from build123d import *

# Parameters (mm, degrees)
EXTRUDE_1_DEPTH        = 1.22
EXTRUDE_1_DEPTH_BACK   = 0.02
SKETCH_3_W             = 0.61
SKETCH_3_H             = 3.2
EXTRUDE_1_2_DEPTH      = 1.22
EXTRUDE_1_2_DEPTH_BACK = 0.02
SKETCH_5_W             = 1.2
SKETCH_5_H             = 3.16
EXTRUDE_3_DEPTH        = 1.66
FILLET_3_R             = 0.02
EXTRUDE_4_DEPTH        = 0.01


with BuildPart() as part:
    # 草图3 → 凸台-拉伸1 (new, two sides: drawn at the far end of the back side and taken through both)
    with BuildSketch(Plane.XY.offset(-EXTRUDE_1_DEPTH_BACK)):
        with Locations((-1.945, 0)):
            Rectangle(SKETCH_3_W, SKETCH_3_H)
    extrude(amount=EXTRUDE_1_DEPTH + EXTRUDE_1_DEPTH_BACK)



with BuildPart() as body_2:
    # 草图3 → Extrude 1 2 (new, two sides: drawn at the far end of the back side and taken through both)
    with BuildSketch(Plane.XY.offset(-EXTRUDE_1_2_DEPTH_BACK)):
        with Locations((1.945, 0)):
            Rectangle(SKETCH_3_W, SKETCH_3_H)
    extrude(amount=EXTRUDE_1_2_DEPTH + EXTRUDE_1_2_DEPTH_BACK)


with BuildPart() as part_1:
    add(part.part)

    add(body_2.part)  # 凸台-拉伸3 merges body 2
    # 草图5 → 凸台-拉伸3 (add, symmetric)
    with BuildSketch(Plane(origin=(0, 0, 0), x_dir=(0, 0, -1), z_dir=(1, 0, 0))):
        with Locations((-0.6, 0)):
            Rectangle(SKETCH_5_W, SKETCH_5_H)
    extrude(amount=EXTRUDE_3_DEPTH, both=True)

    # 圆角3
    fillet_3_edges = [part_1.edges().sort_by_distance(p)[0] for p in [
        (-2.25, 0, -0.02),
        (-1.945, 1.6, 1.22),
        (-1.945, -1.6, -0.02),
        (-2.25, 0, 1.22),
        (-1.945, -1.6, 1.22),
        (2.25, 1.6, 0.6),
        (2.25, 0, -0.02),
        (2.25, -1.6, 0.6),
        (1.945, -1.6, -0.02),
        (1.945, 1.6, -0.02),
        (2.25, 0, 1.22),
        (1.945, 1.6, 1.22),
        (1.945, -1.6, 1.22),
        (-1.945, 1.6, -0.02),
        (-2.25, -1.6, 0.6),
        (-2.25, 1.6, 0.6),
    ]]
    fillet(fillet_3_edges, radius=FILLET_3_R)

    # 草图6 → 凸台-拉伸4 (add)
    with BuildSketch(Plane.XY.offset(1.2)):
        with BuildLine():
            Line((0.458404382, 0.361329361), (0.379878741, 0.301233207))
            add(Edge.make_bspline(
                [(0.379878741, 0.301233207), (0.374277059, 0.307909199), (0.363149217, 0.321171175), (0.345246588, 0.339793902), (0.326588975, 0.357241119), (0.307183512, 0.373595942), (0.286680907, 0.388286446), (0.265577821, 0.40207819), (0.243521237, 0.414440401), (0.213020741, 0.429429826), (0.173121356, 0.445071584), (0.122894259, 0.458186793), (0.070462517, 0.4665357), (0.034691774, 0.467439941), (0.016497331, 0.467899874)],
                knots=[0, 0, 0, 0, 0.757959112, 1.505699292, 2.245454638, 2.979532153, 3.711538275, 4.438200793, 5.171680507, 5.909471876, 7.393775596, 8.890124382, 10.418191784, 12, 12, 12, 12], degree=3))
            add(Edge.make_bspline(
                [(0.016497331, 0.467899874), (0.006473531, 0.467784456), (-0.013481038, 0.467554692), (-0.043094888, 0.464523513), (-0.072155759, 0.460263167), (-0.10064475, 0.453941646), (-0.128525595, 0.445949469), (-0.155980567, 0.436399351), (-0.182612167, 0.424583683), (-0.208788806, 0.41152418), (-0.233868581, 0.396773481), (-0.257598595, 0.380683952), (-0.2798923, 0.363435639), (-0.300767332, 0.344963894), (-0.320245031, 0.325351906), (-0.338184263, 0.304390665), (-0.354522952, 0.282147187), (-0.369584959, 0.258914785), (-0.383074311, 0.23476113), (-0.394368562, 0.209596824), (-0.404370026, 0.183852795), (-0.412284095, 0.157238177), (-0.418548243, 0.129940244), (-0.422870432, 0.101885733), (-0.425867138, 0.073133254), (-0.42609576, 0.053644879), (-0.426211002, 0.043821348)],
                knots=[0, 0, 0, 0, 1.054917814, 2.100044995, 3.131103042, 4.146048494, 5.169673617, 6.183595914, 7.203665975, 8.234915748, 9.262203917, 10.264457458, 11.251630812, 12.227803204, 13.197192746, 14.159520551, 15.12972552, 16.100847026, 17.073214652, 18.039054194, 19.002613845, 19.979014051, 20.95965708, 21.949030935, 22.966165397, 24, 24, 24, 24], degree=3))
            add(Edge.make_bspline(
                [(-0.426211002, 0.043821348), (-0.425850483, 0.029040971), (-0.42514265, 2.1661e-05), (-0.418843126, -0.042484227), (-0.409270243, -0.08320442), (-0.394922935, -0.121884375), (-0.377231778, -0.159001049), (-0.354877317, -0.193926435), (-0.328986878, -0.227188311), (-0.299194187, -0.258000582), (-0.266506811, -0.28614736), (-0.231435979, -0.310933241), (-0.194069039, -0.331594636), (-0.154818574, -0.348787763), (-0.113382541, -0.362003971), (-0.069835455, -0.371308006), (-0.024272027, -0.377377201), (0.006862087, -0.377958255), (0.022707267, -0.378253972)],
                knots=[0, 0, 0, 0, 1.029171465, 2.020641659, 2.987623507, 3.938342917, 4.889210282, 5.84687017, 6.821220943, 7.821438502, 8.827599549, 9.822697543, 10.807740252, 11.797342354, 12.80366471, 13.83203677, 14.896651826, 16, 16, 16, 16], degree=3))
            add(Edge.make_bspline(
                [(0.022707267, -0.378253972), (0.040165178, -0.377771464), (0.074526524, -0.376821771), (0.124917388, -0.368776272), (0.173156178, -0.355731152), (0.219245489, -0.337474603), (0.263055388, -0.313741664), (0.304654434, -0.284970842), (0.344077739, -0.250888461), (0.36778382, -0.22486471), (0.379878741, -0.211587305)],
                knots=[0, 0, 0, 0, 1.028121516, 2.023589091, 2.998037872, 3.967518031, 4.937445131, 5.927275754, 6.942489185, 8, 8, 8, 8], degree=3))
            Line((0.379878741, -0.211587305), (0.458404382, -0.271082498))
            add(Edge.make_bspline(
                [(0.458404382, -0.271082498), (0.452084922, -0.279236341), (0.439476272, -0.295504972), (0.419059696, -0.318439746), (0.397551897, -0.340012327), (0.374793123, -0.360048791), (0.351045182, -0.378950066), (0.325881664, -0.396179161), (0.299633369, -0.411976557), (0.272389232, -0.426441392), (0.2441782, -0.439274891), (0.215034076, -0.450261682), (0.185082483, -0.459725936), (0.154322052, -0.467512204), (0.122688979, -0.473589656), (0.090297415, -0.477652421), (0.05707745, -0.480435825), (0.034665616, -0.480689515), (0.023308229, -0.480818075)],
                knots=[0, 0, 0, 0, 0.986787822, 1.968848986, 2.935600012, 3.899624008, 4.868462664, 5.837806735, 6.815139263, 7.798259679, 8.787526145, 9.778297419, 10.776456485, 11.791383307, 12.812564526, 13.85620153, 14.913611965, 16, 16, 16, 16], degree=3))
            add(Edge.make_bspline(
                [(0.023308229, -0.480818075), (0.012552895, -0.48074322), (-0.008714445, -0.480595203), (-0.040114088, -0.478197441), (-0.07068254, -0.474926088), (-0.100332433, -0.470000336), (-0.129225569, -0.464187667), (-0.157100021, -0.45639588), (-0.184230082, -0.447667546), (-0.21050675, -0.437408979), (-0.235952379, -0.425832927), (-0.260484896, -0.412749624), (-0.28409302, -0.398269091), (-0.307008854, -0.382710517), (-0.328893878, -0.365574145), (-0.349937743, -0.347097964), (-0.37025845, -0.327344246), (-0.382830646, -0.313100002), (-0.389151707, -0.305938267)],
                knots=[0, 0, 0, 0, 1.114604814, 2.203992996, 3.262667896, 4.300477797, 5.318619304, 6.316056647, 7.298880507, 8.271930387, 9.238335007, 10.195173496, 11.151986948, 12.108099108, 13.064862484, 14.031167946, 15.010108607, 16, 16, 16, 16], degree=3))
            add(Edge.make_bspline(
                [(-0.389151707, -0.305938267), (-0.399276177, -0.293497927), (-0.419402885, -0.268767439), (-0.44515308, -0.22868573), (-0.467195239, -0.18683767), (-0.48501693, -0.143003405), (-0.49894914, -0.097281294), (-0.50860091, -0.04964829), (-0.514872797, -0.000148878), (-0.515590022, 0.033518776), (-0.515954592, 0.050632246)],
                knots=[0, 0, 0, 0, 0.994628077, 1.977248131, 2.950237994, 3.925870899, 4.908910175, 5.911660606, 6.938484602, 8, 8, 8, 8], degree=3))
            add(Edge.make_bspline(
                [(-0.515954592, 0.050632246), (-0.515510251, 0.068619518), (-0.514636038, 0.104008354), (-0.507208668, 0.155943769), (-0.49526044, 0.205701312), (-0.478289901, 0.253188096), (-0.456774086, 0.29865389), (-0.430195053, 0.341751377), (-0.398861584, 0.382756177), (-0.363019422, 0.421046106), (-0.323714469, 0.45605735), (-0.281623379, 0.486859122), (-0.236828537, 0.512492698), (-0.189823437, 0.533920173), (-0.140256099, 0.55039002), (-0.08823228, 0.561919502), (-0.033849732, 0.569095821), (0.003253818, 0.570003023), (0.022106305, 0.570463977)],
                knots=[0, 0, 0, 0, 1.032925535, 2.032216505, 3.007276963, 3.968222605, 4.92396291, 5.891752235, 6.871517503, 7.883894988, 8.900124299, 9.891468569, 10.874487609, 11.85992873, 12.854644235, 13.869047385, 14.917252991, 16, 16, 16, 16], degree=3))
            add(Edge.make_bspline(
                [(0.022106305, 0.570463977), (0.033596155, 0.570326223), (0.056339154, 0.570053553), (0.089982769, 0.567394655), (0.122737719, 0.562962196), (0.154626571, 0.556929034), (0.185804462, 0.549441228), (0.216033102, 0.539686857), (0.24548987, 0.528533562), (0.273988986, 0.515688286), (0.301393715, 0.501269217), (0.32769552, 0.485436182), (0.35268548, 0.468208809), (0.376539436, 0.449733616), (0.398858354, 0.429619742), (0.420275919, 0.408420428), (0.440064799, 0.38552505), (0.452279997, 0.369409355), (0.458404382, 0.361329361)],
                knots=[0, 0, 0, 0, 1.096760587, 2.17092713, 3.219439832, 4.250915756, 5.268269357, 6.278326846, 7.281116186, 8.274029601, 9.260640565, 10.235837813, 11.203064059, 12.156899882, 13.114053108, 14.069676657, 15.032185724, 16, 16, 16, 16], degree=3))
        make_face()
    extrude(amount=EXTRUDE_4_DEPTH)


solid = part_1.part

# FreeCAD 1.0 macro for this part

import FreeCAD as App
import Part
import Sketcher
Q = App.Units.Quantity


def edges_at(feature, points):
    """Names of the edges that pass closest to the given points."""
    edges = feature.Shape.Edges
    near = lambda p: min(range(len(edges)), key=lambda i: edges[i].distToShape(Part.Vertex(*p))[0])
    return sorted({f"Edge{near(p) + 1}" for p in points})


def add_polygon(sketch, points):
    """Adds a closed chain of lines whose ends are joined by coincident constraints."""
    first, n = sketch.GeometryCount, len(points)
    for a, b in zip(points, points[1:] + points[:1]):
        sketch.addGeometry(Part.LineSegment(App.Vector(*a, 0), App.Vector(*b, 0)), False)
    for i in range(n):
        sketch.addConstraint(Sketcher.Constraint("Coincident", first + i, 2, first + (i + 1) % n, 1))

doc = App.newDocument("Part")
body = doc.addObject("PartDesign::Body", "Body")

# Sketch on XY plane
sketch1 = body.newObject("Sketcher::SketchObject", "Sketch")
sketch1.AttachmentSupport = (doc.getObject("XY_Plane"), [""])
sketch1.MapMode = "FlatFace"
add_polygon(sketch1, [(-2.2, 1.6), (-2.2, -1.6), (-1.6, -1.6), (-1.6, 1.6)])  # lines 0-3
sketch1.addConstraint(Sketcher.Constraint("Vertical", 0))
sketch1.addConstraint(Sketcher.Constraint("Horizontal", 1))
sketch1.addConstraint(Sketcher.Constraint("Vertical", 2))
sketch1.addConstraint(Sketcher.Constraint("Horizontal", 3))
sketch1.addConstraint(Sketcher.Constraint("DistanceY", 0, 2, 0, 1, Q("3.2 mm")))
sketch1.addConstraint(Sketcher.Constraint("DistanceX", 1, 1, 1, 2, Q("0.61 mm")))
sketch1.addConstraint(Sketcher.Constraint("DistanceY", 0, 2, -1, 1, Q("1.6 mm")))
sketch1.addConstraint(Sketcher.Constraint("DistanceX", 0, 2, -1, 1, Q("2.25 mm")))
pad1 = body.newObject("PartDesign::Pad", "Pad")
pad1.Profile = sketch1
pad1.Type = "TwoLengths"
pad1.Length = 1.22
pad1.Length2 = 0.02
body2 = doc.addObject("PartDesign::Body", "Body001")

# Sketch on XY plane
sketch2 = body2.newObject("Sketcher::SketchObject", "Sketch001")
sketch2.AttachmentSupport = (doc.getObject("XY_Plane001"), [""])
sketch2.MapMode = "FlatFace"
add_polygon(sketch2, [(1.6, 1.6), (1.6, -1.6), (2.2, -1.6), (2.2, 1.6)])  # lines 0-3
sketch2.addConstraint(Sketcher.Constraint("Vertical", 0))
sketch2.addConstraint(Sketcher.Constraint("Horizontal", 1))
sketch2.addConstraint(Sketcher.Constraint("Vertical", 2))
sketch2.addConstraint(Sketcher.Constraint("Horizontal", 3))
sketch2.addConstraint(Sketcher.Constraint("DistanceY", 0, 2, 0, 1, Q("3.2 mm")))
sketch2.addConstraint(Sketcher.Constraint("DistanceX", 1, 1, 1, 2, Q("0.61 mm")))
sketch2.addConstraint(Sketcher.Constraint("DistanceY", 0, 2, -1, 1, Q("1.6 mm")))
sketch2.addConstraint(Sketcher.Constraint("DistanceX", -1, 1, 0, 2, Q("1.64 mm")))
pad2 = body2.newObject("PartDesign::Pad", "Pad001")
pad2.Profile = sketch2
pad2.Type = "TwoLengths"
pad2.Length = 1.22
pad2.Length2 = 0.02
body.AllowCompound = True
doc.recompute()

boolean = body.newObject("PartDesign::Boolean", "Boolean")
boolean.Type = "Fuse"
boolean.addObjects([body2])

# Sketch on YZ plane
sketch3 = body.newObject("Sketcher::SketchObject", "Sketch002")
sketch3.AttachmentSupport = (doc.getObject("YZ_Plane"), [""])
sketch3.MapMode = "FlatFace"
add_polygon(sketch3, [(1.6, 1.2), (-1.6, 1.2), (-1.6, 0), (1.6, 0)])  # lines 0-3
sketch3.addConstraint(Sketcher.Constraint("Horizontal", 0))
sketch3.addConstraint(Sketcher.Constraint("Vertical", 1))
sketch3.addConstraint(Sketcher.Constraint("Horizontal", 2))
sketch3.addConstraint(Sketcher.Constraint("Vertical", 3))
sketch3.addConstraint(Sketcher.Constraint("Symmetric", 1, 2, 2, 2, -1, 1))
sketch3.addConstraint(Sketcher.Constraint("DistanceY", 1, 2, 1, 1, Q("1.2 mm")))
sketch3.addConstraint(Sketcher.Constraint("DistanceX", 0, 2, 0, 1, Q("3.16 mm")))
pad3 = body.newObject("PartDesign::Pad", "Pad002")
pad3.Profile = sketch3
pad3.Length = 3.32
pad3.Midplane = True
doc.recompute()

fillet = body.newObject("PartDesign::Fillet", "Fillet")
fillet.Base = (pad3, edges_at(pad3, [
    (-2.25, 0, -0.02),
    (-1.945, 1.6, 1.22),
    (-1.945, -1.6, -0.02),
    (-2.25, 0, 1.22),
    (-1.945, -1.6, 1.22),
    (2.25, 1.6, 0.6),
    (2.25, 0, -0.02),
    (2.25, -1.6, 0.6),
    (1.945, -1.6, -0.02),
    (1.945, 1.6, -0.02),
    (2.25, 0, 1.22),
    (1.945, 1.6, 1.22),
    (1.945, -1.6, 1.22),
    (-1.945, 1.6, -0.02),
    (-2.25, -1.6, 0.6),
    (-2.25, 1.6, 0.6),
]))
fillet.Radius = 0.02

# Sketch on XY plane
sketch4 = body.newObject("Sketcher::SketchObject", "Sketch003")
sketch4.AttachmentSupport = (doc.getObject("XY_Plane"), [""])
sketch4.MapMode = "FlatFace"
sketch4.AttachmentOffset = App.Placement(App.Vector(0, 0, 1.2), App.Rotation())
sketch4.addGeometry(Part.LineSegment(App.Vector(0.379879, 0.301233, 0), App.Vector(0.458404, 0.361329, 0)), False)
sketch4.addGeometry(Part.BSplineCurve([App.Vector(0.022106, 0.570464, 0), App.Vector(0.033596, 0.570326, 0), App.Vector(0.056339, 0.570054, 0), App.Vector(0.089983, 0.567395, 0), App.Vector(0.122738, 0.562962, 0), App.Vector(0.154627, 0.556929, 0), App.Vector(0.185804, 0.549441, 0), App.Vector(0.216033, 0.539687, 0), App.Vector(0.24549, 0.528534, 0), App.Vector(0.273989, 0.515688, 0), App.Vector(0.301394, 0.501269, 0), App.Vector(0.327696, 0.485436, 0), App.Vector(0.352685, 0.468209, 0), App.Vector(0.376539, 0.449734, 0), App.Vector(0.398858, 0.42962, 0), App.Vector(0.420276, 0.40842, 0), App.Vector(0.440065, 0.385525, 0), App.Vector(0.45228, 0.369409, 0), App.Vector(0.458404, 0.361329, 0)], [4, 1, 1, 1, 1, 1, 1, 1, 1, 1, 1, 1, 1, 1, 1, 1, 4], [0, 1.096760587, 2.17092713, 3.219439832, 4.250915756, 5.268269357, 6.278326846, 7.281116186, 8.274029601, 9.260640565, 10.235837813, 11.203064059, 12.156899882, 13.114053108, 14.069676657, 15.032185724, 16], False, 3, [1, 1, 1, 1, 1, 1, 1, 1, 1, 1, 1, 1, 1, 1, 1, 1, 1, 1, 1], False), False)
sketch4.addGeometry(Part.BSplineCurve([App.Vector(-0.515955, 0.050632, 0), App.Vector(-0.51551, 0.06862, 0), App.Vector(-0.514636, 0.104008, 0), App.Vector(-0.507209, 0.155944, 0), App.Vector(-0.49526, 0.205701, 0), App.Vector(-0.47829, 0.253188, 0), App.Vector(-0.456774, 0.298654, 0), App.Vector(-0.430195, 0.341751, 0), App.Vector(-0.398862, 0.382756, 0), App.Vector(-0.363019, 0.421046, 0), App.Vector(-0.323714, 0.456057, 0), App.Vector(-0.281623, 0.486859, 0), App.Vector(-0.236829, 0.512493, 0), App.Vector(-0.189823, 0.53392, 0), App.Vector(-0.140256, 0.55039, 0), App.Vector(-0.088232, 0.56192, 0), App.Vector(-0.03385, 0.569096, 0), App.Vector(0.003254, 0.570003, 0), App.Vector(0.022106, 0.570464, 0)], [4, 1, 1, 1, 1, 1, 1, 1, 1, 1, 1, 1, 1, 1, 1, 1, 4], [0, 1.032925535, 2.032216505, 3.007276963, 3.968222605, 4.92396291, 5.891752235, 6.871517503, 7.883894988, 8.900124299, 9.891468569, 10.874487609, 11.85992873, 12.854644235, 13.869047385, 14.917252991, 16], False, 3, [1, 1, 1, 1, 1, 1, 1, 1, 1, 1, 1, 1, 1, 1, 1, 1, 1, 1, 1], False), False)
sketch4.addGeometry(Part.BSplineCurve([App.Vector(-0.389152, -0.305938, 0), App.Vector(-0.399276, -0.293498, 0), App.Vector(-0.419403, -0.268767, 0), App.Vector(-0.445153, -0.228686, 0), App.Vector(-0.467195, -0.186838, 0), App.Vector(-0.485017, -0.143003, 0), App.Vector(-0.498949, -0.097281, 0), App.Vector(-0.508601, -0.049648, 0), App.Vector(-0.514873, -0.000149, 0), App.Vector(-0.51559, 0.033519, 0), App.Vector(-0.515955, 0.050632, 0)], [4, 1, 1, 1, 1, 1, 1, 1, 4], [0, 0.994628077, 1.977248131, 2.950237994, 3.925870899, 4.908910175, 5.911660606, 6.938484602, 8], False, 3, [1, 1, 1, 1, 1, 1, 1, 1, 1, 1, 1], False), False)
sketch4.addGeometry(Part.BSplineCurve([App.Vector(0.023308, -0.480818, 0), App.Vector(0.012553, -0.480743, 0), App.Vector(-0.008714, -0.480595, 0), App.Vector(-0.040114, -0.478197, 0), App.Vector(-0.070683, -0.474926, 0), App.Vector(-0.100332, -0.47, 0), App.Vector(-0.129226, -0.464188, 0), App.Vector(-0.1571, -0.456396, 0), App.Vector(-0.18423, -0.447668, 0), App.Vector(-0.210507, -0.437409, 0), App.Vector(-0.235952, -0.425833, 0), App.Vector(-0.260485, -0.41275, 0), App.Vector(-0.284093, -0.398269, 0), App.Vector(-0.307009, -0.382711, 0), App.Vector(-0.328894, -0.365574, 0), App.Vector(-0.349938, -0.347098, 0), App.Vector(-0.370258, -0.327344, 0), App.Vector(-0.382831, -0.3131, 0), App.Vector(-0.389152, -0.305938, 0)], [4, 1, 1, 1, 1, 1, 1, 1, 1, 1, 1, 1, 1, 1, 1, 1, 4], [0, 1.114604814, 2.203992996, 3.262667896, 4.300477797, 5.318619304, 6.316056647, 7.298880507, 8.271930387, 9.238335007, 10.195173496, 11.151986948, 12.108099108, 13.064862484, 14.031167946, 15.010108607, 16], False, 3, [1, 1, 1, 1, 1, 1, 1, 1, 1, 1, 1, 1, 1, 1, 1, 1, 1, 1, 1], False), False)
sketch4.addGeometry(Part.BSplineCurve([App.Vector(0.458404, -0.271082, 0), App.Vector(0.452085, -0.279236, 0), App.Vector(0.439476, -0.295505, 0), App.Vector(0.41906, -0.31844, 0), App.Vector(0.397552, -0.340012, 0), App.Vector(0.374793, -0.360049, 0), App.Vector(0.351045, -0.37895, 0), App.Vector(0.325882, -0.396179, 0), App.Vector(0.299633, -0.411977, 0), App.Vector(0.272389, -0.426441, 0), App.Vector(0.244178, -0.439275, 0), App.Vector(0.215034, -0.450262, 0), App.Vector(0.185082, -0.459726, 0), App.Vector(0.154322, -0.467512, 0), App.Vector(0.122689, -0.47359, 0), App.Vector(0.090297, -0.477652, 0), App.Vector(0.057077, -0.480436, 0), App.Vector(0.034666, -0.48069, 0), App.Vector(0.023308, -0.480818, 0)], [4, 1, 1, 1, 1, 1, 1, 1, 1, 1, 1, 1, 1, 1, 1, 1, 4], [0, 0.986787822, 1.968848986, 2.935600012, 3.899624008, 4.868462664, 5.837806735, 6.815139263, 7.798259679, 8.787526145, 9.778297419, 10.776456485, 11.791383307, 12.812564526, 13.85620153, 14.913611965, 16], False, 3, [1, 1, 1, 1, 1, 1, 1, 1, 1, 1, 1, 1, 1, 1, 1, 1, 1, 1, 1], False), False)
sketch4.addGeometry(Part.LineSegment(App.Vector(0.458404, -0.271082, 0), App.Vector(0.379879, -0.211587, 0)), False)
sketch4.addGeometry(Part.BSplineCurve([App.Vector(0.022707, -0.378254, 0), App.Vector(0.040165, -0.377771, 0), App.Vector(0.074527, -0.376822, 0), App.Vector(0.124917, -0.368776, 0), App.Vector(0.173156, -0.355731, 0), App.Vector(0.219245, -0.337475, 0), App.Vector(0.263055, -0.313742, 0), App.Vector(0.304654, -0.284971, 0), App.Vector(0.344078, -0.250888, 0), App.Vector(0.367784, -0.224865, 0), App.Vector(0.379879, -0.211587, 0)], [4, 1, 1, 1, 1, 1, 1, 1, 4], [0, 1.028121516, 2.023589091, 2.998037872, 3.967518031, 4.937445131, 5.927275754, 6.942489185, 8], False, 3, [1, 1, 1, 1, 1, 1, 1, 1, 1, 1, 1], False), False)
sketch4.addGeometry(Part.BSplineCurve([App.Vector(-0.426211, 0.043821, 0), App.Vector(-0.42585, 0.029041, 0), App.Vector(-0.425143, 0.000022, 0), App.Vector(-0.418843, -0.042484, 0), App.Vector(-0.40927, -0.083204, 0), App.Vector(-0.394923, -0.121884, 0), App.Vector(-0.377232, -0.159001, 0), App.Vector(-0.354877, -0.193926, 0), App.Vector(-0.328987, -0.227188, 0), App.Vector(-0.299194, -0.258001, 0), App.Vector(-0.266507, -0.286147, 0), App.Vector(-0.231436, -0.310933, 0), App.Vector(-0.194069, -0.331595, 0), App.Vector(-0.154819, -0.348788, 0), App.Vector(-0.113383, -0.362004, 0), App.Vector(-0.069835, -0.371308, 0), App.Vector(-0.024272, -0.377377, 0), App.Vector(0.006862, -0.377958, 0), App.Vector(0.022707, -0.378254, 0)], [4, 1, 1, 1, 1, 1, 1, 1, 1, 1, 1, 1, 1, 1, 1, 1, 4], [0, 1.029171465, 2.020641659, 2.987623507, 3.938342917, 4.889210282, 5.84687017, 6.821220943, 7.821438502, 8.827599549, 9.822697543, 10.807740252, 11.797342354, 12.80366471, 13.83203677, 14.896651826, 16], False, 3, [1, 1, 1, 1, 1, 1, 1, 1, 1, 1, 1, 1, 1, 1, 1, 1, 1, 1, 1], False), False)
sketch4.addGeometry(Part.BSplineCurve([App.Vector(0.016497, 0.4679, 0), App.Vector(0.006474, 0.467784, 0), App.Vector(-0.013481, 0.467555, 0), App.Vector(-0.043095, 0.464524, 0), App.Vector(-0.072156, 0.460263, 0), App.Vector(-0.100645, 0.453942, 0), App.Vector(-0.128526, 0.445949, 0), App.Vector(-0.155981, 0.436399, 0), App.Vector(-0.182612, 0.424584, 0), App.Vector(-0.208789, 0.411524, 0), App.Vector(-0.233869, 0.396773, 0), App.Vector(-0.257599, 0.380684, 0), App.Vector(-0.279892, 0.363436, 0), App.Vector(-0.300767, 0.344964, 0), App.Vector(-0.320245, 0.325352, 0), App.Vector(-0.338184, 0.304391, 0), App.Vector(-0.354523, 0.282147, 0), App.Vector(-0.369585, 0.258915, 0), App.Vector(-0.383074, 0.234761, 0), App.Vector(-0.394369, 0.209597, 0), App.Vector(-0.40437, 0.183853, 0), App.Vector(-0.412284, 0.157238, 0), App.Vector(-0.418548, 0.12994, 0), App.Vector(-0.42287, 0.101886, 0), App.Vector(-0.425867, 0.073133, 0), App.Vector(-0.426096, 0.053645, 0), App.Vector(-0.426211, 0.043821, 0)], [4, 1, 1, 1, 1, 1, 1, 1, 1, 1, 1, 1, 1, 1, 1, 1, 1, 1, 1, 1, 1, 1, 1, 1, 4], [0, 1.054917814, 2.100044995, 3.131103042, 4.146048494, 5.169673617, 6.183595914, 7.203665975, 8.234915748, 9.262203917, 10.264457458, 11.251630812, 12.227803204, 13.197192746, 14.159520551, 15.12972552, 16.100847026, 17.073214652, 18.039054194, 19.002613845, 19.979014051, 20.95965708, 21.949030935, 22.966165397, 24], False, 3, [1, 1, 1, 1, 1, 1, 1, 1, 1, 1, 1, 1, 1, 1, 1, 1, 1, 1, 1, 1, 1, 1, 1, 1, 1, 1, 1], False), False)
sketch4.addGeometry(Part.BSplineCurve([App.Vector(0.379879, 0.301233, 0), App.Vector(0.374277, 0.307909, 0), App.Vector(0.363149, 0.321171, 0), App.Vector(0.345247, 0.339794, 0), App.Vector(0.326589, 0.357241, 0), App.Vector(0.307184, 0.373596, 0), App.Vector(0.286681, 0.388286, 0), App.Vector(0.265578, 0.402078, 0), App.Vector(0.243521, 0.41444, 0), App.Vector(0.213021, 0.42943, 0), App.Vector(0.173121, 0.445072, 0), App.Vector(0.122894, 0.458187, 0), App.Vector(0.070463, 0.466536, 0), App.Vector(0.034692, 0.46744, 0), App.Vector(0.016497, 0.4679, 0)], [4, 1, 1, 1, 1, 1, 1, 1, 1, 1, 1, 1, 4], [0, 0.757959112, 1.505699292, 2.245454638, 2.979532153, 3.711538275, 4.438200793, 5.171680507, 5.909471876, 7.393775596, 8.890124382, 10.418191784, 12], False, 3, [1, 1, 1, 1, 1, 1, 1, 1, 1, 1, 1, 1, 1, 1, 1], False), False)
sketch4.addConstraint(Sketcher.Constraint("Block", 1))
sketch4.addConstraint(Sketcher.Constraint("Block", 2))
sketch4.addConstraint(Sketcher.Constraint("Block", 3))
sketch4.addConstraint(Sketcher.Constraint("Block", 4))
sketch4.addConstraint(Sketcher.Constraint("Block", 5))
sketch4.addConstraint(Sketcher.Constraint("Block", 7))
sketch4.addConstraint(Sketcher.Constraint("Block", 8))
sketch4.addConstraint(Sketcher.Constraint("Block", 9))
sketch4.addConstraint(Sketcher.Constraint("Block", 10))
sketch4.addConstraint(Sketcher.Constraint("Coincident", 0, 2, 1, 2))
sketch4.addConstraint(Sketcher.Constraint("Coincident", 5, 1, 6, 1))
sketch4.addConstraint(Sketcher.Constraint("Coincident", 6, 2, 7, 2))
sketch4.addConstraint(Sketcher.Constraint("Coincident", 10, 1, 0, 1))
pad4 = body.newObject("PartDesign::Pad", "Pad003")
pad4.Profile = sketch4
pad4.Length = 0.01

doc.recompute()
